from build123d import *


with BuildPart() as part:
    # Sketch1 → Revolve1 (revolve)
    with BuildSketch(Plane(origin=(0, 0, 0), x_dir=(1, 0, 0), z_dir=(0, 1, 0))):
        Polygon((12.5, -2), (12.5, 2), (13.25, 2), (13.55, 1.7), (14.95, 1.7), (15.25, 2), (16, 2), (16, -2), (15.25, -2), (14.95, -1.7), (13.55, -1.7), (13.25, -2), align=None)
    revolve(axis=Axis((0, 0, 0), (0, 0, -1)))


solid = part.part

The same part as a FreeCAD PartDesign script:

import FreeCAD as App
import Part
import Sketcher

doc = App.newDocument("Part")
body = doc.addObject("PartDesign::Body", "Body")

# Sketch on XZ plane
sketch1 = doc.addObject("Sketcher::SketchObject", "Sketch")
body.addObject(sketch1)
sketch1.AttachmentSupport = (doc.XZ_Plane, [""])
sketch1.MapMode = "FlatFace"
sketch1.addGeometry([
    Part.LineSegment(App.Vector(12.5, -2, 0), App.Vector(12.5, 2, 0)),  # 0
    Part.LineSegment(App.Vector(12.5, 2, 0), App.Vector(13.25, 2, 0)),  # 1
    Part.LineSegment(App.Vector(13.25, 2, 0), App.Vector(13.55, 1.7, 0)),  # 2
    Part.LineSegment(App.Vector(13.55, 1.7, 0), App.Vector(14.95, 1.7, 0)),  # 3
    Part.LineSegment(App.Vector(14.95, 1.7, 0), App.Vector(15.25, 2, 0)),  # 4
    Part.LineSegment(App.Vector(15.25, 2, 0), App.Vector(16, 2, 0)),  # 5
    Part.LineSegment(App.Vector(16, 2, 0), App.Vector(16, -2, 0)),  # 6
    Part.LineSegment(App.Vector(16, -2, 0), App.Vector(15.25, -2, 0)),  # 7
    Part.LineSegment(App.Vector(15.25, -2, 0), App.Vector(14.95, -1.7, 0)),  # 8
    Part.LineSegment(App.Vector(14.95, -1.7, 0), App.Vector(13.55, -1.7, 0)),  # 9
    Part.LineSegment(App.Vector(13.55, -1.7, 0), App.Vector(13.25, -2, 0)),  # 10
    Part.LineSegment(App.Vector(13.25, -2, 0), App.Vector(12.5, -2, 0)),  # 11
], False)
sketch1.addConstraint([
    Sketcher.Constraint("Coincident", 0, 2, 1, 1),
    Sketcher.Constraint("Coincident", 1, 2, 2, 1),
    Sketcher.Constraint("Coincident", 2, 2, 3, 1),
    Sketcher.Constraint("Coincident", 3, 2, 4, 1),
    Sketcher.Constraint("Coincident", 4, 2, 5, 1),
    Sketcher.Constraint("Coincident", 5, 2, 6, 1),
    Sketcher.Constraint("Coincident", 6, 2, 7, 1),
    Sketcher.Constraint("Coincident", 7, 2, 8, 1),
    Sketcher.Constraint("Coincident", 8, 2, 9, 1),
    Sketcher.Constraint("Coincident", 9, 2, 10, 1),
    Sketcher.Constraint("Coincident", 10, 2, 11, 1),
    Sketcher.Constraint("Coincident", 11, 2, 0, 1),
    Sketcher.Constraint("Vertical", 0),
    Sketcher.Constraint("Horizontal", 1),
    Sketcher.Constraint("Horizontal", 3),
    Sketcher.Constraint("Horizontal", 5),
    Sketcher.Constraint("Vertical", 6),
    Sketcher.Constraint("Horizontal", 7),
    Sketcher.Constraint("Horizontal", 9),
    Sketcher.Constraint("Horizontal", 11),
    Sketcher.Constraint("Symmetric", 4, 2, 7, 2, -1),
    Sketcher.Constraint("Symmetric", 3, 2, 8, 2, -1),
    Sketcher.Constraint("Symmetric", 1, 2, 10, 2, -1),
    Sketcher.Constraint("Perpendicular", 2, 4),
    Sketcher.Constraint("Perpendicular", 4, 8),
    Sketcher.Constraint("Perpendicular", 8, 10),
    Sketcher.Constraint("Horizontal", 1, 2, 4, 2),
    Sketcher.Constraint("Equal", 1, 5),
    Sketcher.Constraint("DistanceY", 0, 1, 0, 2, 4.0),
    Sketcher.Constraint("DistanceX", 3, 1, 3, 2, 1.4),
    Sketcher.Constraint("DistanceX", -1, 1, 5, 2, 16.0),
    Sketcher.Constraint("DistanceX", 1, 2, 4, 2, 2.0),
    Sketcher.Constraint("DistanceX", 1, 1, 1, 2, 0.75),
])
revolution = doc.addObject("PartDesign::Revolution", "Revolution")
body.addObject(revolution)
revolution.Profile = sketch1
revolution.ReferenceAxis = (sketch1, ["V_Axis"])
revolution.Angle = 360

doc.recompute()
